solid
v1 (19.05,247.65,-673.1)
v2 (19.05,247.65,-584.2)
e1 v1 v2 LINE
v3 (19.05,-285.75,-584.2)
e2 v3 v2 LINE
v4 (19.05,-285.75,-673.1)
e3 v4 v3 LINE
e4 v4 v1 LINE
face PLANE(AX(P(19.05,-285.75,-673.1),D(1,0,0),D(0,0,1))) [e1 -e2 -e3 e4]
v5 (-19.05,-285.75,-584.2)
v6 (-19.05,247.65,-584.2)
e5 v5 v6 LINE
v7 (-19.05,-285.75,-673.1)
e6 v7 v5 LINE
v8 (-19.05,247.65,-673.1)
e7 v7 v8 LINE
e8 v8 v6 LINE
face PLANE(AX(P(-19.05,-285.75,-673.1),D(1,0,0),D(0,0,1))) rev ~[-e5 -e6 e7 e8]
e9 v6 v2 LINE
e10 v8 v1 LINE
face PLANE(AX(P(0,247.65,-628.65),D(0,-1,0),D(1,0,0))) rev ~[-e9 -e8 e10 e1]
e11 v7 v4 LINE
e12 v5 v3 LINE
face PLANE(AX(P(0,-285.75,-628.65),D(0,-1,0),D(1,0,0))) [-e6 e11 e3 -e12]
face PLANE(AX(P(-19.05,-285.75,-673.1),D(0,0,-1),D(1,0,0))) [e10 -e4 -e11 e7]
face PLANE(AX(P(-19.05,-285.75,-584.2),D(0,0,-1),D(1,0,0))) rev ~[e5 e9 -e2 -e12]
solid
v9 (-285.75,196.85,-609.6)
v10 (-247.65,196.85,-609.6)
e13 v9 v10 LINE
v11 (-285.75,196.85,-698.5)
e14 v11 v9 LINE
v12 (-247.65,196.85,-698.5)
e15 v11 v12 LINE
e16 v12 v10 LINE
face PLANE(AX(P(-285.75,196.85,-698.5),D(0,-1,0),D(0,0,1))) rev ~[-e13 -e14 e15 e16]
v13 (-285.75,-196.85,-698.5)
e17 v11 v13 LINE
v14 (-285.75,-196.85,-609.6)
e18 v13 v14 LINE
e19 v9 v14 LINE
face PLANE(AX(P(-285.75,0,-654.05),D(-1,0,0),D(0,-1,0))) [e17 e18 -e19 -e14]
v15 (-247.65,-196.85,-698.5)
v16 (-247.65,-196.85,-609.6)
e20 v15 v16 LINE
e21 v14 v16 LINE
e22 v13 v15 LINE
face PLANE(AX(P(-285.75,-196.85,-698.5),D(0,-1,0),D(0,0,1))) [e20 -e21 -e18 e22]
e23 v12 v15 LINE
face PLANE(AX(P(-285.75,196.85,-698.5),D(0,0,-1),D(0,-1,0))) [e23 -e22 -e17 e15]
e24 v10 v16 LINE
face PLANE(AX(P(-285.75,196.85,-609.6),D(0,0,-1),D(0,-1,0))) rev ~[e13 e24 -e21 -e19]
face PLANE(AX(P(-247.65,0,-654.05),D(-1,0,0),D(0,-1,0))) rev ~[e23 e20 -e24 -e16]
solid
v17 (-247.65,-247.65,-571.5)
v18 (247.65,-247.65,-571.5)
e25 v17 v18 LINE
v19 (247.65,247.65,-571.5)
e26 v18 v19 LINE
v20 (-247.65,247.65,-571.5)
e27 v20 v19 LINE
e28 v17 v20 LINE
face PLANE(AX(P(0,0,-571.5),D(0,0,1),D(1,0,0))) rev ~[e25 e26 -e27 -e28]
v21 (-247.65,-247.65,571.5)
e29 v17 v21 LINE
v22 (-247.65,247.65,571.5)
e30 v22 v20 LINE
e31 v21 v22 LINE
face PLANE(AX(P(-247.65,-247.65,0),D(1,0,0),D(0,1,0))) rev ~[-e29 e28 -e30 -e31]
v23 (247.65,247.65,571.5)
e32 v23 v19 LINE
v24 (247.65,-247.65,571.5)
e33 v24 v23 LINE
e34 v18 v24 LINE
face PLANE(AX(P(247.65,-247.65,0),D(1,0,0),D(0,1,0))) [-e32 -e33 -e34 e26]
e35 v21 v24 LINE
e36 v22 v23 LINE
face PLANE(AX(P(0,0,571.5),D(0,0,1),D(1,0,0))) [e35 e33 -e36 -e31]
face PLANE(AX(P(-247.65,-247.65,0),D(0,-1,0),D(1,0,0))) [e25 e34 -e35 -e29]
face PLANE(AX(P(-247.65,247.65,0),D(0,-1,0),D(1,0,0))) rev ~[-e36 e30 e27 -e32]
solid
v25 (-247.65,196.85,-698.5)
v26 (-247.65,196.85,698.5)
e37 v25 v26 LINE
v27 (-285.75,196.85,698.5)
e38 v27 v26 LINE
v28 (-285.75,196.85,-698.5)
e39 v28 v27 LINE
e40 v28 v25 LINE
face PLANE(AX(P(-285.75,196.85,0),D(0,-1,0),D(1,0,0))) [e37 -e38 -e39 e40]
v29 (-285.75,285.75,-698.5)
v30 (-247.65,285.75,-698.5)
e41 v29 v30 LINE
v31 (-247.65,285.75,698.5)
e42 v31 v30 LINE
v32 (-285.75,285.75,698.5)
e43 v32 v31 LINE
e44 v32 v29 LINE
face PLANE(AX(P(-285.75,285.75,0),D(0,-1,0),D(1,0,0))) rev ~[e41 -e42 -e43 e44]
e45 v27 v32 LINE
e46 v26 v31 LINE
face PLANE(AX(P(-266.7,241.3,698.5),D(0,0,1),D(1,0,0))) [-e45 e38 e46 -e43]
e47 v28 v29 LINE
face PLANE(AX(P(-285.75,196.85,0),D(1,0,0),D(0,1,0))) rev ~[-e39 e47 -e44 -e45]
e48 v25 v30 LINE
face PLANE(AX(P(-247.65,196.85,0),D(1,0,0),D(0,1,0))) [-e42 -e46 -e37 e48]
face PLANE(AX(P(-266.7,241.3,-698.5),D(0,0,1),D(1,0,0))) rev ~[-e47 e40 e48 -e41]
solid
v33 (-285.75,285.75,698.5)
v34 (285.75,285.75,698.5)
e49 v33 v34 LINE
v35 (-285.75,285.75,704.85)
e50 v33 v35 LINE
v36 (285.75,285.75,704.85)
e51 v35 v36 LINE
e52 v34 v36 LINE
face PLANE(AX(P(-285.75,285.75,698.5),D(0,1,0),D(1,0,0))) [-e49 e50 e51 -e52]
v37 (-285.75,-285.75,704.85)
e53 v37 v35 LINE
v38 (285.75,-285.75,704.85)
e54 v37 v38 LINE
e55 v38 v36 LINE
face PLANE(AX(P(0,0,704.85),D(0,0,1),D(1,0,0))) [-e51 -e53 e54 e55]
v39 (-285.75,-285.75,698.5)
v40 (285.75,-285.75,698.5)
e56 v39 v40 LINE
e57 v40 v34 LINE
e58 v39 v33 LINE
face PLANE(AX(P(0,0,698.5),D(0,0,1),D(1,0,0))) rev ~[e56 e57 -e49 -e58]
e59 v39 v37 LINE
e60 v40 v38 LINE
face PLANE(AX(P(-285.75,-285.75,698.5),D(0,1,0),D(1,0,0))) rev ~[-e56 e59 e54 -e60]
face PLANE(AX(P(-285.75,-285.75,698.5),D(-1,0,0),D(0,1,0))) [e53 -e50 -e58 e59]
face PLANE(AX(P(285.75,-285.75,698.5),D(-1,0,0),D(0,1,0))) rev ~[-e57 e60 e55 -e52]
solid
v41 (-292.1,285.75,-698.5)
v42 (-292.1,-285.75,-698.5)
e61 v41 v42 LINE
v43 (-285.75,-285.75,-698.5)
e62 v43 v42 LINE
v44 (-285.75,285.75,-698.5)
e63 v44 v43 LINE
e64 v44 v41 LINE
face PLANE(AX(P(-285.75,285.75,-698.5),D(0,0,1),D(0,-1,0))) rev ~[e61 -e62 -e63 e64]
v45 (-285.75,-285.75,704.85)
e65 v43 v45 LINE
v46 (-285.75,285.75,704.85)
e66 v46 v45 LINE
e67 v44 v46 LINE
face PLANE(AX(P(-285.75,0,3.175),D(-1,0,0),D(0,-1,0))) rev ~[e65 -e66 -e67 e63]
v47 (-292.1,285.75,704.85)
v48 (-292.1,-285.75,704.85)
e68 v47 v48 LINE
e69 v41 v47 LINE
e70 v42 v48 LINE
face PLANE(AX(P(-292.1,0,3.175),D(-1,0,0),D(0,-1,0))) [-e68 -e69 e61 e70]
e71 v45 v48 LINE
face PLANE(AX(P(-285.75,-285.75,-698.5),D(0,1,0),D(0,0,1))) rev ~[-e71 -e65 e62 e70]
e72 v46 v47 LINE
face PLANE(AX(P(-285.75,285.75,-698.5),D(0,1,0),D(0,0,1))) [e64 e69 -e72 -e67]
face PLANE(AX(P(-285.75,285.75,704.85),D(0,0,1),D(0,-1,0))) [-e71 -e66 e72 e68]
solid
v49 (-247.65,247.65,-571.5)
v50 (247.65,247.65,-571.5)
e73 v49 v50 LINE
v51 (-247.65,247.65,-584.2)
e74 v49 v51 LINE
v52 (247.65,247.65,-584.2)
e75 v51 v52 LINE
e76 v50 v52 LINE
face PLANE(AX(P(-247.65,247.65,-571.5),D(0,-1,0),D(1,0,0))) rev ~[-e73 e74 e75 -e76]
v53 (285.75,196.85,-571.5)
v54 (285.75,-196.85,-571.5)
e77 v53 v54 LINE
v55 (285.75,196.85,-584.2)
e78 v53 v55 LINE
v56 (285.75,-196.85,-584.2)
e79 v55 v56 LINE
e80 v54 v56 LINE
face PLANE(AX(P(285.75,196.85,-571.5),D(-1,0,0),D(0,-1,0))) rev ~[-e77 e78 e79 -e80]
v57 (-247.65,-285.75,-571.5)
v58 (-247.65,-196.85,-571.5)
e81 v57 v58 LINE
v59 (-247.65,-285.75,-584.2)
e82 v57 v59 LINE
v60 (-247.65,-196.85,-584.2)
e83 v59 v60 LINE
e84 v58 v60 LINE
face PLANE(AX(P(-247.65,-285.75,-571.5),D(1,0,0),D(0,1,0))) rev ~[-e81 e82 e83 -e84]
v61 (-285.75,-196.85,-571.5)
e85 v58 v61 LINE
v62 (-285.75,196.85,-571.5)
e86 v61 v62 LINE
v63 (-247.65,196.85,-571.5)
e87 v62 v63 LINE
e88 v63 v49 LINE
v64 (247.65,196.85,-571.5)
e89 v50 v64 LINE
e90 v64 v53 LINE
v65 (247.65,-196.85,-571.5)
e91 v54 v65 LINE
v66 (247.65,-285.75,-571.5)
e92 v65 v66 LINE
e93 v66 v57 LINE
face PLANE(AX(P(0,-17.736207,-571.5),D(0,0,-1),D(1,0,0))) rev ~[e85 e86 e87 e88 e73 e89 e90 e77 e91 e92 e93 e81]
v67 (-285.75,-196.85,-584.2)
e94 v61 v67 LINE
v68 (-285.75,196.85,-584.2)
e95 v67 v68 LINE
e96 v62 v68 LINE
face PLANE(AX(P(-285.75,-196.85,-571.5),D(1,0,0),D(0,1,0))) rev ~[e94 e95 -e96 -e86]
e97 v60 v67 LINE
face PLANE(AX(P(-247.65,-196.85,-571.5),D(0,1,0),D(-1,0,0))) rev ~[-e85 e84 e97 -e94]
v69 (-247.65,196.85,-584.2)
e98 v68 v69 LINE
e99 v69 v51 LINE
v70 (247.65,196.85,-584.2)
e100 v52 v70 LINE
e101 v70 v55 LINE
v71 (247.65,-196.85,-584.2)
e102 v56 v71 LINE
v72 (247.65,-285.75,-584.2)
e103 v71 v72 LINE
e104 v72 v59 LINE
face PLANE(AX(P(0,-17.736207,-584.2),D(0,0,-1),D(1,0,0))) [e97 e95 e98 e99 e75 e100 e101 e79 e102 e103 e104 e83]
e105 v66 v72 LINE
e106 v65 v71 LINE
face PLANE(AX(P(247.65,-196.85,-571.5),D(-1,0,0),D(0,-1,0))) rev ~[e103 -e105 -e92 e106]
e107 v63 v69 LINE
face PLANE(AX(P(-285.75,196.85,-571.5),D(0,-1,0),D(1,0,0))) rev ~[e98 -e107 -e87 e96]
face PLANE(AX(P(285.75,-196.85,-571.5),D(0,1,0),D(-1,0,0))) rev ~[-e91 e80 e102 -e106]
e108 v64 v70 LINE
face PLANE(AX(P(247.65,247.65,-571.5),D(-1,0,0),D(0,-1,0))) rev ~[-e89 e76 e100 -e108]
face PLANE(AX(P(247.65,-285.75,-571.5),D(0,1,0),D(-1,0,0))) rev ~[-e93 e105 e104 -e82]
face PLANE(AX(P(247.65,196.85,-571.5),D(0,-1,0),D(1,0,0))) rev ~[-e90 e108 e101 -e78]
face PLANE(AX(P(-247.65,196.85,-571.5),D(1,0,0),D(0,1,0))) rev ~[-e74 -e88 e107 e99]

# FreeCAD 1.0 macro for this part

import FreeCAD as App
import Part
import Sketcher

V = App.Vector
Q = App.Units.Quantity


def add_polygon(sketch, points):
    """Adds a closed chain of lines whose ends are joined by coincident constraints."""
    first, n = sketch.GeometryCount, len(points)
    for a, b in zip(points, points[1:] + points[:1]):
        sketch.addGeometry(Part.LineSegment(App.Vector(*a, 0), App.Vector(*b, 0)), False)
    for i in range(n):
        sketch.addConstraint(Sketcher.Constraint("Coincident", first + i, 2, first + (i + 1) % n, 1))

doc = App.newDocument("Part")
body = doc.addObject("PartDesign::Body", "Body")

sketch1 = doc.addObject("Sketcher::SketchObject", "Sketch")
body.addObject(sketch1)
sketch1.AttachmentSupport = (doc.XY_Plane, [""])
sketch1.MapMode = "FlatFace"
add_polygon(sketch1, [(-247.65, 247.65), (-247.65, -247.65), (247.65, -247.65), (247.65, 247.65)])
sketch1.addConstraint([
    Sketcher.Constraint("Vertical", 0),
    Sketcher.Constraint("Horizontal", 1),
    Sketcher.Constraint("Vertical", 2),
    Sketcher.Constraint("Horizontal", 3),
    Sketcher.Constraint("Symmetric", 0, 2, 2, 2, -1, 1),
    Sketcher.Constraint("Equal", 3, 0),
    Sketcher.Constraint("DistanceX", 1, 1, 1, 2, Q("19.5 in")),
])
pad1 = doc.addObject("PartDesign::Pad", "Pad")
body.addObject(pad1)
pad1.Profile = sketch1
pad1.Length = Q("45 in")
pad1.Midplane = True
body2 = doc.addObject("PartDesign::Body", "Body001")

sketch2 = doc.addObject("Sketcher::SketchObject", "Sketch001")
body2.addObject(sketch2)
sketch2.AttachmentSupport = (doc.getObject("XY_Plane001"), [""])
sketch2.MapMode = "FlatFace"
add_polygon(sketch2, [(-285.75, 285.75), (-285.75, 196.85), (-247.65, 196.85), (-247.65, 285.75)])
sketch2.addConstraint([
    Sketcher.Constraint("Vertical", 0),
    Sketcher.Constraint("Horizontal", 1),
    Sketcher.Constraint("Vertical", 2),
    Sketcher.Constraint("Horizontal", 3),
    Sketcher.Constraint("DistanceX", 1, 1, 1, 2, Q("1.5 in")),
    Sketcher.Constraint("DistanceY", 0, 2, 0, 1, Q("3.5 in")),
    Sketcher.Constraint("DistanceX", 0, 2, -1, 1, Q("11.25 in")),
    Sketcher.Constraint("DistanceY", -1, 1, 0, 2, Q("7.75 in")),
])
pad2 = doc.addObject("PartDesign::Pad", "Pad001")
body2.addObject(pad2)
pad2.Profile = sketch2
pad2.Length = Q("55 in")
pad2.Midplane = True
body3 = doc.addObject("PartDesign::Body", "Body002")

sketch3 = doc.addObject("Sketcher::SketchObject", "Sketch002")
body3.addObject(sketch3)
sketch3.AttachmentSupport = (doc.getObject("XY_Plane002"), [""])
sketch3.MapMode = "FlatFace"
sketch3.AttachmentOffset = App.Placement(V(0, 0, -22.5 * 25.4), App.Rotation())
add_polygon(sketch3, [(247.65, -285.75), (-247.65, -285.75), (-247.65, -196.85), (-285.75, -196.85), (-285.75, 196.85), (-247.65, 196.85), (-247.65, 247.65), (247.65, 247.65), (247.65, 196.85), (285.75, 196.85), (285.75, -196.85), (247.65, -196.85)])
sketch3.addConstraint([
    Sketcher.Constraint("Horizontal", 0),
    Sketcher.Constraint("Vertical", 1),
    Sketcher.Constraint("Horizontal", 2),
    Sketcher.Constraint("Vertical", 3),
    Sketcher.Constraint("Horizontal", 4),
    Sketcher.Constraint("Vertical", 5),
    Sketcher.Constraint("Horizontal", 6),
    Sketcher.Constraint("Vertical", 7),
    Sketcher.Constraint("Horizontal", 8),
    Sketcher.Constraint("Vertical", 9),
    Sketcher.Constraint("Horizontal", 10),
    Sketcher.Constraint("Vertical", 11),
    Sketcher.Constraint("Symmetric", 1, 2, 7, 2, -1, 1),
    Sketcher.Constraint("Symmetric", 3, 2, 9, 2, -1, 1),
    Sketcher.Constraint("Symmetric", 4, 2, 7, 2, -2),
    Sketcher.Constraint("Vertical", 7, 2, 10, 2),
    Sketcher.Constraint("DistanceY", 5, 1, 5, 2, Q("2 in")),
    Sketcher.Constraint("DistanceX", 0, 2, 0, 1, Q("19.5 in")),
    Sketcher.Constraint("DistanceX", 2, 2, 2, 1, Q("1.5 in")),
    Sketcher.Constraint("DistanceY", 1, 1, 1, 2, Q("3.5 in")),
    Sketcher.Constraint("DistanceY", 3, 1, 3, 2, Q("15.5 in")),
])
pad3 = doc.addObject("PartDesign::Pad", "Pad002")
body3.addObject(pad3)
pad3.Profile = sketch3
pad3.Length = Q("0.5 in")
pad3.Reversed = True
body4 = doc.addObject("PartDesign::Body", "Body003")

sketch4 = doc.addObject("Sketcher::SketchObject", "Sketch003")
body4.addObject(sketch4)
sketch4.AttachmentSupport = (doc.getObject("YZ_Plane003"), [""])
sketch4.MapMode = "FlatFace"
sketch4.AttachmentOffset = App.Placement(V(0, 0, -11.25 * 25.4), App.Rotation())
add_polygon(sketch4, [(196.85, -609.6), (196.85, -698.5), (-196.85, -698.5), (-196.85, -609.6)])
sketch4.addConstraint([
    Sketcher.Constraint("Vertical", 0),
    Sketcher.Constraint("Horizontal", 1),
    Sketcher.Constraint("Vertical", 2),
    Sketcher.Constraint("Horizontal", 3),
    Sketcher.Constraint("DistanceX", 1, 2, 1, 1, Q("15.5 in")),
    Sketcher.Constraint("DistanceY", 0, 2, 0, 1, Q("3.5 in")),
    Sketcher.Constraint("DistanceY", 2, 2, -1, 1, Q("24 in")),
    Sketcher.Constraint("DistanceX", -1, 1, 0, 2, Q("7.75 in")),
])
pad4 = doc.addObject("PartDesign::Pad", "Pad003")
body4.addObject(pad4)
pad4.Profile = sketch4
pad4.Length = Q("1.5 in")
body5 = doc.addObject("PartDesign::Body", "Body004")

sketch5 = doc.addObject("Sketcher::SketchObject", "Sketch004")
body5.addObject(sketch5)
sketch5.AttachmentSupport = (doc.getObject("XZ_Plane004"), [""])
sketch5.MapMode = "FlatFace"
sketch5.AttachmentOffset = App.Placement(V(0, 0, 11.25 * 25.4), App.Rotation())
add_polygon(sketch5, [(-19.05, -584.2), (-19.05, -673.1), (19.05, -673.1), (19.05, -584.2)])
sketch5.addConstraint([
    Sketcher.Constraint("Vertical", 0),
    Sketcher.Constraint("Horizontal", 1),
    Sketcher.Constraint("Vertical", 2),
    Sketcher.Constraint("Horizontal", 3),
    Sketcher.Constraint("DistanceX", 1, 1, 1, 2, Q("1.5 in")),
    Sketcher.Constraint("DistanceY", 0, 2, 0, 1, Q("3.5 in")),
    Sketcher.Constraint("DistanceY", 2, 2, -1, 1, Q("23 in")),
    Sketcher.Constraint("DistanceX", 0, 2, -1, 1, Q("0.75 in")),
])
pad5 = doc.addObject("PartDesign::Pad", "Pad004")
body5.addObject(pad5)
pad5.Profile = sketch5
pad5.Length = Q("21 in")
pad5.Reversed = True
body6 = doc.addObject("PartDesign::Body", "Body005")

sketch6 = doc.addObject("Sketcher::SketchObject", "Sketch005")
body6.addObject(sketch6)
sketch6.AttachmentSupport = (doc.getObject("XY_Plane005"), [""])
sketch6.MapMode = "FlatFace"
sketch6.AttachmentOffset = App.Placement(V(0, 0, 27.5 * 25.4), App.Rotation())
add_polygon(sketch6, [(-285.75, 285.75), (-285.75, -285.75), (285.75, -285.75), (285.75, 285.75)])
sketch6.addConstraint([
    Sketcher.Constraint("Vertical", 0),
    Sketcher.Constraint("Horizontal", 1),
    Sketcher.Constraint("Vertical", 2),
    Sketcher.Constraint("Horizontal", 3),
    Sketcher.Constraint("Symmetric", 0, 2, 2, 2, -1, 1),
    Sketcher.Constraint("Equal", 3, 0),
    Sketcher.Constraint("DistanceX", 1, 1, 1, 2, Q("22.5 in")),
])
pad6 = doc.addObject("PartDesign::Pad", "Pad005")
body6.addObject(pad6)
pad6.Profile = sketch6
pad6.Length = Q("0.25 in")
body7 = doc.addObject("PartDesign::Body", "Body006")

sketch7 = doc.addObject("Sketcher::SketchObject", "Sketch006")
body7.addObject(sketch7)
sketch7.AttachmentSupport = (doc.getObject("YZ_Plane006"), [""])
sketch7.MapMode = "FlatFace"
sketch7.AttachmentOffset = App.Placement(V(0, 0, -11.25 * 25.4), App.Rotation())
add_polygon(sketch7, [(285.75, 704.85), (285.75, -698.5), (-285.75, -698.5), (-285.75, 704.85)])
sketch7.addConstraint([
    Sketcher.Constraint("Vertical", 0),
    Sketcher.Constraint("Horizontal", 1),
    Sketcher.Constraint("Vertical", 2),
    Sketcher.Constraint("Horizontal", 3),
    Sketcher.Constraint("DistanceX", 1, 2, 1, 1, Q("22.5 in")),
    Sketcher.Constraint("DistanceY", 0, 2, 0, 1, Q("55.25 in")),
    Sketcher.Constraint("DistanceY", 0, 2, -1, 1, Q("27.5 in")),
    Sketcher.Constraint("DistanceX", -1, 1, 0, 2, Q("11.25 in")),
])
pad7 = doc.addObject("PartDesign::Pad", "Pad006")
body7.addObject(pad7)
pad7.Profile = sketch7
pad7.Length = Q("0.25 in")
pad7.Reversed = True

doc.recompute()
